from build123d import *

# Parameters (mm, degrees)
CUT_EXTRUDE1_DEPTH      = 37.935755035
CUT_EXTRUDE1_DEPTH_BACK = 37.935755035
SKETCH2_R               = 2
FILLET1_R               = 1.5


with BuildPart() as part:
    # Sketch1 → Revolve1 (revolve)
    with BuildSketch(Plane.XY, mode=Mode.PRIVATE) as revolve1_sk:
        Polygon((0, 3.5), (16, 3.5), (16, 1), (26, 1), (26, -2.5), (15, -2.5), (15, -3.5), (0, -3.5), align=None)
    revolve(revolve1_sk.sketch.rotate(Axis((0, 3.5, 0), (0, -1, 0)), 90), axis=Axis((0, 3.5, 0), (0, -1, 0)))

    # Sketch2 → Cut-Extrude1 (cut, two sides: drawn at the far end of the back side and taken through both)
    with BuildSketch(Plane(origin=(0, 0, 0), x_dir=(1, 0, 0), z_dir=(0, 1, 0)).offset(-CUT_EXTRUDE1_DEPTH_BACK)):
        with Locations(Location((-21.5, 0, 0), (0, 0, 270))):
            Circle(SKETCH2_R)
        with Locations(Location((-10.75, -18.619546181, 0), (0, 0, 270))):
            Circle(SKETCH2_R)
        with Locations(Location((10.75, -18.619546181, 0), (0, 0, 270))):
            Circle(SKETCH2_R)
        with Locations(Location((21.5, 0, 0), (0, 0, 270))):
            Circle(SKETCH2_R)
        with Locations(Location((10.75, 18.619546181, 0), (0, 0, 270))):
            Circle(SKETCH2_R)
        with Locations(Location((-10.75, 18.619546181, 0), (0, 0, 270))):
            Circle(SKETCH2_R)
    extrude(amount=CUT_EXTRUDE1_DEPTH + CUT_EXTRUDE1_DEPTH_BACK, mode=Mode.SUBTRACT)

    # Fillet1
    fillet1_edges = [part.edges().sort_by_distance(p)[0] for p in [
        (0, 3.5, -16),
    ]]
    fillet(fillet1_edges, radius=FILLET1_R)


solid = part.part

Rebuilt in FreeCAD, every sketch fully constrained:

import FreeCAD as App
import Part
import Sketcher

V = App.Vector
Q = App.Units.Quantity


def edges_at(feature, points):
    """Names of the edges that pass closest to the given points."""
    edges = feature.Shape.Edges
    near = lambda p: min(range(len(edges)), key=lambda i: edges[i].distToShape(Part.Vertex(*p))[0])
    return sorted({f"Edge{near(p) + 1}" for p in points})


def add_polygon(sketch, points):
    """Adds a closed chain of lines whose ends are joined by coincident constraints."""
    first, n = sketch.GeometryCount, len(points)
    for a, b in zip(points, points[1:] + points[:1]):
        sketch.addGeometry(Part.LineSegment(App.Vector(*a, 0), App.Vector(*b, 0)), False)
    for i in range(n):
        sketch.addConstraint(Sketcher.Constraint("Coincident", first + i, 2, first + (i + 1) % n, 1))

doc = App.newDocument("Part")
body = doc.addObject("PartDesign::Body", "Body")

sketch1 = doc.addObject("Sketcher::SketchObject", "Sketch")
body.addObject(sketch1)
sketch1.AttachmentSupport = (doc.XY_Plane, [""])
sketch1.MapMode = "FlatFace"
add_polygon(sketch1, [(16, 3.5), (0, 3.5), (0, -3.5), (15, -3.5), (15, -2.5), (26, -2.5), (26, 1), (16, 1)])
sketch1.addConstraint([
    Sketcher.Constraint("Horizontal", 0),
    Sketcher.Constraint("Vertical", 1),
    Sketcher.Constraint("Horizontal", 2),
    Sketcher.Constraint("Vertical", 3),
    Sketcher.Constraint("Horizontal", 4),
    Sketcher.Constraint("Vertical", 5),
    Sketcher.Constraint("Horizontal", 6),
    Sketcher.Constraint("Vertical", 7),
    Sketcher.Constraint("Symmetric", 0, 2, 1, 2, -1, 1),
    Sketcher.Constraint("DistanceX", 0, 2, 0, 1, Q("16 mm")),
    Sketcher.Constraint("DistanceX", 2, 1, 2, 2, Q("15 mm")),
    Sketcher.Constraint("DistanceX", 4, 1, 4, 2, Q("11 mm")),
    Sketcher.Constraint("DistanceY", 1, 2, 1, 1, Q("7 mm")),
    Sketcher.Constraint("DistanceY", 3, 1, 3, 2, Q("1 mm")),
    Sketcher.Constraint("DistanceY", 5, 1, 5, 2, Q("3.5 mm")),
])
revolution = doc.addObject("PartDesign::Revolution", "Revolution")
body.addObject(revolution)
revolution.Profile = sketch1
revolution.ReferenceAxis = (sketch1, ["V_Axis"])
revolution.Angle = 360

sketch2 = doc.addObject("Sketcher::SketchObject", "Sketch001")
body.addObject(sketch2)
sketch2.AttachmentSupport = (doc.XZ_Plane, [""])
sketch2.MapMode = "FlatFace"
sketch2.addGeometry([
    Part.Circle(V(-21.5, 0, 0), V(0, 0, 1), 2),
    Part.Circle(V(-10.8, 18.6, 0), V(0, 0, 1), 2),
    Part.Circle(V(10.8, 18.6, 0), V(0, 0, 1), 2),
    Part.Circle(V(21.5, 0, 0), V(0, 0, 1), 2),
    Part.Circle(V(10.8, -18.6, 0), V(0, 0, 1), 2),
    Part.Circle(V(-10.8, -18.6, 0), V(0, 0, 1), 2),
], False)
sketch2.addConstraint([
    Sketcher.Constraint("Equal", 0, 1),
    Sketcher.Constraint("Equal", 1, 2),
    Sketcher.Constraint("Equal", 2, 3),
    Sketcher.Constraint("Equal", 3, 4),
    Sketcher.Constraint("Equal", 4, 5),
    Sketcher.Constraint("Symmetric", 0, 3, 3, 3, -1, 1),
    Sketcher.Constraint("Symmetric", 1, 3, 4, 3, -1, 1),
    Sketcher.Constraint("Symmetric", 2, 3, 5, 3, -1, 1),
    Sketcher.Constraint("Symmetric", 1, 3, 2, 3, -2),
    Sketcher.Constraint("PointOnObject", 0, 3, -1),
    Sketcher.Constraint("Diameter", 0, Q("4 mm")),
    Sketcher.Constraint("DistanceX", 0, 3, 3, 3, Q("43 mm")),
    Sketcher.Constraint("DistanceX", 1, 3, 2, 3, Q("21.5 mm")),
    Sketcher.Constraint("DistanceY", -1, 1, 1, 3, Q("18.619546 mm")),
])
pocket1 = doc.addObject("PartDesign::Pocket", "Pocket")
body.addObject(pocket1)
pocket1.Profile = sketch2
pocket1.Type = "ThroughAll"
pocket1.Midplane = True
doc.recompute()

fillet = doc.addObject("PartDesign::Fillet", "Fillet")
body.addObject(fillet)
fillet.Base = (pocket1, edges_at(pocket1, [(0, 3.5, -16)]))
fillet.Radius = 1.5

doc.recompute()
